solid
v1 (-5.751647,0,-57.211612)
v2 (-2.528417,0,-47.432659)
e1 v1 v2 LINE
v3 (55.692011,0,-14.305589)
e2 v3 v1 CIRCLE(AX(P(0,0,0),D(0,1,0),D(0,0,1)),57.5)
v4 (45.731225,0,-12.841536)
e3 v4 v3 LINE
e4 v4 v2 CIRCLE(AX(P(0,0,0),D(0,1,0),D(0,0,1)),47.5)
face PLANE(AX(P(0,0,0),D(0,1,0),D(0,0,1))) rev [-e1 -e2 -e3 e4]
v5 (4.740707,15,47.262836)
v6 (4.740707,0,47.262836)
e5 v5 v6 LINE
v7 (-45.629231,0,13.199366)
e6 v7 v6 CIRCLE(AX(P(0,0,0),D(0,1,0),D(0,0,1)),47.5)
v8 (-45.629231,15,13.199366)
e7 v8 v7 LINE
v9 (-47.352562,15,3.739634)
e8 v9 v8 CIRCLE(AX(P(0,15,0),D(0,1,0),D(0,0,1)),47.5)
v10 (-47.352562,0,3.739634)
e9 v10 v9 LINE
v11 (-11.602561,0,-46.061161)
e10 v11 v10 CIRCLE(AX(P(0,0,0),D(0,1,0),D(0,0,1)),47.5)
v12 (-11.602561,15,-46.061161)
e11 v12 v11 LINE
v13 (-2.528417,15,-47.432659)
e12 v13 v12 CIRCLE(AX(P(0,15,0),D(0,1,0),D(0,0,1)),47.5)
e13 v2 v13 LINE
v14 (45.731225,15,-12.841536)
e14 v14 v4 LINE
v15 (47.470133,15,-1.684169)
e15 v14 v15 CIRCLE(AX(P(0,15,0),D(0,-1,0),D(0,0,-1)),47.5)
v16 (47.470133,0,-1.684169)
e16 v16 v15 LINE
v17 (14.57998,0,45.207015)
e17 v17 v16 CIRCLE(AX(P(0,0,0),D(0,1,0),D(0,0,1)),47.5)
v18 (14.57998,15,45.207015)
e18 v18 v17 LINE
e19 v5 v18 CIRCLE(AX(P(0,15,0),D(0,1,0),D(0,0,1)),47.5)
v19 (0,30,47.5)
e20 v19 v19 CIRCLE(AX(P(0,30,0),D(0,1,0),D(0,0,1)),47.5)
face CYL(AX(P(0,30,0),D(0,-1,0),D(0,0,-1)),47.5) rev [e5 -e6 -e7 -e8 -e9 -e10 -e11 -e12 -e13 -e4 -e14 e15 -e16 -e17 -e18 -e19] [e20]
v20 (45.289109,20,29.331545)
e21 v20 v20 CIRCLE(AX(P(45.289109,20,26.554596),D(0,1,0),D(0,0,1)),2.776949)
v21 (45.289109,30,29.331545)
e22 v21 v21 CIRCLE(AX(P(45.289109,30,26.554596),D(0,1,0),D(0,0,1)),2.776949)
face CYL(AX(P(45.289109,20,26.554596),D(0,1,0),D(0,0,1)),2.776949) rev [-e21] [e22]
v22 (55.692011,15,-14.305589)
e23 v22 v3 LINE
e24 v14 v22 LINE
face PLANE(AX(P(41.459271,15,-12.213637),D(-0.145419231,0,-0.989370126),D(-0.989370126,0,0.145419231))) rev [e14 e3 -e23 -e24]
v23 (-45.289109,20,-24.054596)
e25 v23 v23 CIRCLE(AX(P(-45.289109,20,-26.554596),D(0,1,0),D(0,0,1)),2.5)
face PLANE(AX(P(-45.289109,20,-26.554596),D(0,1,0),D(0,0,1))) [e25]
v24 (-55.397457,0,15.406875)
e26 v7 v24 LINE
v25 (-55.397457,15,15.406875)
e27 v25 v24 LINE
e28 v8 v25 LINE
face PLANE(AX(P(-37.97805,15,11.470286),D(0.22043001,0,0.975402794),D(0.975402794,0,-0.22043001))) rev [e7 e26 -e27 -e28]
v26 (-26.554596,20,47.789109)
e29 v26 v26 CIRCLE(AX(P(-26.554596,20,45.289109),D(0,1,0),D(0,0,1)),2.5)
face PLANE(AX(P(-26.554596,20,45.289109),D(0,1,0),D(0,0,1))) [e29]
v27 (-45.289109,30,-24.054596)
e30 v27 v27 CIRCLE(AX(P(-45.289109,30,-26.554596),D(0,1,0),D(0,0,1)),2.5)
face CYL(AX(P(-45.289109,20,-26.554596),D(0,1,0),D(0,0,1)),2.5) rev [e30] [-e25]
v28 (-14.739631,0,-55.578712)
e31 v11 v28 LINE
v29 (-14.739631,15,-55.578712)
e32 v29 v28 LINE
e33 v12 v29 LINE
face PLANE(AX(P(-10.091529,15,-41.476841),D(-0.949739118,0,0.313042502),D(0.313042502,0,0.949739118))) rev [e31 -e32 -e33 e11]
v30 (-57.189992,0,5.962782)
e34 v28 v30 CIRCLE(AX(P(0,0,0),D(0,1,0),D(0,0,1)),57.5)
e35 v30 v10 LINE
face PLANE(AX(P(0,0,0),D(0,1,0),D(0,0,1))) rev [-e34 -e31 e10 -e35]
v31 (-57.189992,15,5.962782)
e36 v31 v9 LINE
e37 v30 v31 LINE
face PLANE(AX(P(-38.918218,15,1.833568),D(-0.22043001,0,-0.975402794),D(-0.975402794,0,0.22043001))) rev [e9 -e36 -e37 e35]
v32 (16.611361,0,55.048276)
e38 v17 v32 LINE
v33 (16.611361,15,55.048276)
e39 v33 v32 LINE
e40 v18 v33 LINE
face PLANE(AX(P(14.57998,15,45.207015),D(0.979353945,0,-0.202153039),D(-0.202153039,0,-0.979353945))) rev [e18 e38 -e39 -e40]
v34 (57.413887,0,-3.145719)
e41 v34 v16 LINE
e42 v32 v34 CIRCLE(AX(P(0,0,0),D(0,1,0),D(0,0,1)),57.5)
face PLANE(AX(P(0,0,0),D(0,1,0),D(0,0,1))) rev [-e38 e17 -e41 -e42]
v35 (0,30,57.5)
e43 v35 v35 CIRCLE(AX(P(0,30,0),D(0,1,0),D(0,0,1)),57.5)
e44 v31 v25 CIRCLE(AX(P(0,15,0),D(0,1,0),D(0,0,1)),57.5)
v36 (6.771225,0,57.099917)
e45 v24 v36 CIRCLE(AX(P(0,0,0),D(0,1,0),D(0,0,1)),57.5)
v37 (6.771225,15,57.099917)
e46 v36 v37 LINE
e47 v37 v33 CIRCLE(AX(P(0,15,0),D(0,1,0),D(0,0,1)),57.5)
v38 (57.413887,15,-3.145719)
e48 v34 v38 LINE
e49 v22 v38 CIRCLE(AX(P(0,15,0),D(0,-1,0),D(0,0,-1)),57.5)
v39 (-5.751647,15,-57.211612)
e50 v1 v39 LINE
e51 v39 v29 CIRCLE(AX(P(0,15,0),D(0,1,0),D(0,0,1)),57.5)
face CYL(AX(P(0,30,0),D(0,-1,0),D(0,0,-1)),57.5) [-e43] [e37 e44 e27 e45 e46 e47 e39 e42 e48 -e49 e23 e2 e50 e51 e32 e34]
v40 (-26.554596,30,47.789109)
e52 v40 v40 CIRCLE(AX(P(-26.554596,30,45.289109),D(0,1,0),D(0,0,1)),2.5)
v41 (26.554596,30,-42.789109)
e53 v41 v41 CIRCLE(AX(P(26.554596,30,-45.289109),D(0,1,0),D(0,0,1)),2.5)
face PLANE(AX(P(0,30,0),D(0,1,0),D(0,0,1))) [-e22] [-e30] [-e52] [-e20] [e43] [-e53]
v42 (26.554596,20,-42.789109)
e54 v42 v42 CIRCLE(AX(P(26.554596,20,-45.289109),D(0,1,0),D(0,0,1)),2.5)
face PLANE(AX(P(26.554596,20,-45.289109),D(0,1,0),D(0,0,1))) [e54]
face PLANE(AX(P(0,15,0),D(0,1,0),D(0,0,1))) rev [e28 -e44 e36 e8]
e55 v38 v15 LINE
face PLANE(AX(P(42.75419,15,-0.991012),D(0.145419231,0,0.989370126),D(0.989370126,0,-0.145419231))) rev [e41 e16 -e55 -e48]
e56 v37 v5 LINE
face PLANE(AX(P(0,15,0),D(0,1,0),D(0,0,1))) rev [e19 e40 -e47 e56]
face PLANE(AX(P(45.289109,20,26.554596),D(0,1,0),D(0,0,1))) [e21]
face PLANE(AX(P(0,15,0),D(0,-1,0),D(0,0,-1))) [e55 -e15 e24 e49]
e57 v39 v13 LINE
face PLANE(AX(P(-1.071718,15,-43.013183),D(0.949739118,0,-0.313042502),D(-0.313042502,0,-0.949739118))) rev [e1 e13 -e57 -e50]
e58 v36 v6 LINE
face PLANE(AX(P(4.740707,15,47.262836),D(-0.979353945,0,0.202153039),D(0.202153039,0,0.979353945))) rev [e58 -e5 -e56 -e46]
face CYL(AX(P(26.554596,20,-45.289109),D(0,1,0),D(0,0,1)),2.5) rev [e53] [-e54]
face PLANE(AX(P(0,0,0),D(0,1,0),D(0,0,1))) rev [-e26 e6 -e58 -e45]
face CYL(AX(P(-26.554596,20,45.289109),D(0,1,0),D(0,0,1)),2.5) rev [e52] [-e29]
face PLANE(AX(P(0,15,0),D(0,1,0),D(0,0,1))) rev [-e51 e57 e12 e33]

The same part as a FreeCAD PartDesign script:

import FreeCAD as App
import Part
import Sketcher

V = App.Vector


def add_polygon(sketch, points):
    """Adds a closed chain of lines whose ends are joined by coincident constraints."""
    first, n = sketch.GeometryCount, len(points)
    for a, b in zip(points, points[1:] + points[:1]):
        sketch.addGeometry(Part.LineSegment(App.Vector(*a, 0), App.Vector(*b, 0)), False)
    for i in range(n):
        sketch.addConstraint(Sketcher.Constraint("Coincident", first + i, 2, first + (i + 1) % n, 1))

doc = App.newDocument("Part")
params = doc.addObject("Spreadsheet::Sheet", "Params")
for row, (alias, value) in enumerate([
    ("sketch1_diameter", "115 mm"),
    ("sketch1_diameter2", "95 mm"),
    ("pad1_length", "30 mm"),
    ("pocket1_length", "15 mm"),
    ("pocket2_length", "15 mm"),
    ("pocket3_length", "15 mm"),
    ("pocket4_length", "15 mm"),
    ("sketch6_diameter", "5 mm"),
    ("pocket5_length", "10 mm"),
], start=1):
    params.set(f"A{row}", alias)
    params.set(f"B{row}", "=" + value)
    params.setAlias(f"B{row}", alias)

body = doc.addObject("PartDesign::Body", "Body")

sketch1 = body.newObject("Sketcher::SketchObject", "Sketch")
sketch1.AttachmentSupport = (doc.getObject("XZ_Plane"), [""])
sketch1.MapMode = "FlatFace"
sketch1.addGeometry(Part.Circle(V(0, 0, 0), V(0, 0, 1), 57.5), False)
sketch1.addGeometry(Part.Circle(V(0, 0, 0), V(0, 0, 1), 47.5), False)
sketch1.addConstraint(Sketcher.Constraint("Coincident", 0, 3, -1, 1))
sketch1.addConstraint(Sketcher.Constraint("Coincident", 1, 3, -1, 1))
sketch1.addConstraint(Sketcher.Constraint("Diameter", 0, 115.0))
sketch1.addConstraint(Sketcher.Constraint("Diameter", 1, 95.0))
sketch1.setExpression("Constraints[2]", "Params.sketch1_diameter")
sketch1.setExpression("Constraints[3]", "Params.sketch1_diameter2")
pad1 = body.newObject("PartDesign::Pad", "Pad")
pad1.Profile = sketch1
pad1.setExpression("Length", "Params.pad1_length")
pad1.Reversed = True

sketch2 = body.newObject("Sketcher::SketchObject", "Sketch001")
sketch2.AttachmentSupport = (doc.getObject("XZ_Plane"), [""])
sketch2.MapMode = "FlatFace"
add_polygon(sketch2, [(4.740707, 47.262836), (14.57998, 45.207015), (17.999134, 61.771503), (8.159861, 63.827325)])
sketch2.addConstraint(Sketcher.Constraint("Parallel", 0, 2))
sketch2.addConstraint(Sketcher.Constraint("Parallel", 1, 3))
sketch2.addConstraint(Sketcher.Constraint("Distance", 0, 10.051751))
sketch2.addConstraint(Sketcher.Constraint("Distance", 1, 16.913689))
sketch2.addConstraint(Sketcher.Constraint("DistanceX", -1, 1, 0, 2, 14.57998))
sketch2.addConstraint(Sketcher.Constraint("DistanceX", -1, 1, 2, 2, 8.159861))
sketch2.addConstraint(Sketcher.Constraint("DistanceY", 0, 2, 1, 2, 16.564488))
sketch2.addConstraint(Sketcher.Constraint("DistanceY", -1, 1, 0, 2, 45.207015))
pocket1 = body.newObject("PartDesign::Pocket", "Pocket")
pocket1.Profile = sketch2
pocket1.setExpression("Length", "Params.pocket1_length")

sketch3 = body.newObject("Sketcher::SketchObject", "Sketch002")
sketch3.AttachmentSupport = (doc.getObject("XZ_Plane"), [""])
sketch3.MapMode = "FlatFace"
add_polygon(sketch3, [(-37.97805, 11.470286), (-58.779259, 16.171124), (-59.719426, 6.534406), (-38.918218, 1.833568)])
sketch3.addConstraint(Sketcher.Constraint("Parallel", 0, 2))
sketch3.addConstraint(Sketcher.Constraint("Parallel", 1, 3))
sketch3.addConstraint(Sketcher.Constraint("Distance", 1, 9.682471))
sketch3.addConstraint(Sketcher.Constraint("DistanceX", 0, 2, -1, 1, 58.779259))
sketch3.addConstraint(Sketcher.Constraint("DistanceX", 3, 2, -1, 1, 37.97805))
sketch3.addConstraint(Sketcher.Constraint("DistanceY", 2, 2, 1, 2, 4.700838))
sketch3.addConstraint(Sketcher.Constraint("DistanceX", 0, 2, 2, 2, 19.861041))
sketch3.addConstraint(Sketcher.Constraint("DistanceY", -1, 1, 0, 2, 16.171124))
pocket2 = body.newObject("PartDesign::Pocket", "Pocket001")
pocket2.Profile = sketch3
pocket2.setExpression("Length", "Params.pocket2_length")

sketch4 = body.newObject("Sketcher::SketchObject", "Sketch003")
sketch4.AttachmentSupport = (doc.getObject("XZ_Plane"), [""])
sketch4.MapMode = "FlatFace"
add_polygon(sketch4, [(-10.091529, -41.476841), (-15.939538, -59.219106), (-6.919727, -60.755448), (-1.071718, -43.013183)])
sketch4.addConstraint(Sketcher.Constraint("Parallel", 0, 2))
sketch4.addConstraint(Sketcher.Constraint("Parallel", 1, 3))
sketch4.addConstraint(Sketcher.Constraint("Distance", 0, 18.681199))
sketch4.addConstraint(Sketcher.Constraint("DistanceX", 3, 2, 1, 2, 3.171802))
sketch4.addConstraint(Sketcher.Constraint("DistanceX", 3, 2, -1, 1, 10.091529))
sketch4.addConstraint(Sketcher.Constraint("DistanceY", 3, 2, -1, 1, 41.476841))
sketch4.addConstraint(Sketcher.Constraint("DistanceX", 0, 2, 1, 2, 9.019811))
sketch4.addConstraint(Sketcher.Constraint("DistanceY", 1, 2, 0, 2, 1.536341))
pocket3 = body.newObject("PartDesign::Pocket", "Pocket002")
pocket3.Profile = sketch4
pocket3.setExpression("Length", "Params.pocket3_length")

sketch5 = body.newObject("Sketcher::SketchObject", "Sketch004")
sketch5.AttachmentSupport = (doc.getObject("XZ_Plane"), [""])
sketch5.MapMode = "FlatFace"
add_polygon(sketch5, [(70.163293, -5.019647), (42.75419, -0.991012), (41.459271, -12.213637), (68.868375, -16.242272)])
sketch5.addConstraint(Sketcher.Constraint("Parallel", 0, 2))
sketch5.addConstraint(Sketcher.Constraint("Parallel", 1, 3))
sketch5.addConstraint(Sketcher.Constraint("Distance", 0, 27.703589))
sketch5.addConstraint(Sketcher.Constraint("DistanceX", -1, 1, 0, 2, 42.75419))
sketch5.addConstraint(Sketcher.Constraint("DistanceX", -1, 1, 1, 2, 41.459271))
sketch5.addConstraint(Sketcher.Constraint("DistanceY", 2, 2, -1, 1, 16.242272))
sketch5.addConstraint(Sketcher.Constraint("DistanceY", 2, 2, 0, 2, 15.25126))
sketch5.addConstraint(Sketcher.Constraint("DistanceX", 1, 2, 3, 2, 28.704022))
pocket4 = body.newObject("PartDesign::Pocket", "Pocket003")
pocket4.Profile = sketch5
pocket4.setExpression("Length", "Params.pocket4_length")

sketch6 = body.newObject("Sketcher::SketchObject", "Sketch005")
sketch6.AttachmentSupport = (doc.getObject("XZ_Plane"), [""])
sketch6.MapMode = "FlatFace"
sketch6.AttachmentOffset = App.Placement(V(0, 0, -30), App.Rotation())
sketch6.addGeometry(Part.Circle(V(45.289109, 26.554596, 0), V(0, 0, 1), 2.776949), False)
sketch6.addGeometry(Part.Circle(V(26.554596, -45.289109, 0), V(0, 0, 1), 2.5), False)
sketch6.addGeometry(Part.Circle(V(-26.554596, 45.289109, 0), V(0, 0, 1), 2.5), False)
sketch6.addGeometry(Part.Circle(V(-45.289109, -26.554596, 0), V(0, 0, 1), 2.5), False)
sketch6.addConstraint(Sketcher.Constraint("Equal", 1, 2))
sketch6.addConstraint(Sketcher.Constraint("Equal", 2, 3))
sketch6.addConstraint(Sketcher.Constraint("Symmetric", 1, 3, 2, 3, -1, 1))
sketch6.addConstraint(Sketcher.Constraint("Symmetric", 0, 3, 3, 3, -1, 1))
sketch6.addConstraint(Sketcher.Constraint("Diameter", 1, 5.0))
sketch6.addConstraint(Sketcher.Constraint("Diameter", 0, 5.553898))
sketch6.addConstraint(Sketcher.Constraint("DistanceX", -1, 1, 0, 3, 45.289109))
sketch6.addConstraint(Sketcher.Constraint("DistanceY", 1, 3, -1, 1, 45.289109))
sketch6.addConstraint(Sketcher.Constraint("DistanceY", -1, 1, 0, 3, 26.554596))
sketch6.addConstraint(Sketcher.Constraint("DistanceX", -1, 1, 1, 3, 26.554596))
sketch6.setExpression("Constraints[4]", "Params.sketch6_diameter")
pocket5 = body.newObject("PartDesign::Pocket", "Pocket004")
pocket5.Profile = sketch6
pocket5.setExpression("Length", "Params.pocket5_length")
pocket5.Reversed = True

doc.recompute()
